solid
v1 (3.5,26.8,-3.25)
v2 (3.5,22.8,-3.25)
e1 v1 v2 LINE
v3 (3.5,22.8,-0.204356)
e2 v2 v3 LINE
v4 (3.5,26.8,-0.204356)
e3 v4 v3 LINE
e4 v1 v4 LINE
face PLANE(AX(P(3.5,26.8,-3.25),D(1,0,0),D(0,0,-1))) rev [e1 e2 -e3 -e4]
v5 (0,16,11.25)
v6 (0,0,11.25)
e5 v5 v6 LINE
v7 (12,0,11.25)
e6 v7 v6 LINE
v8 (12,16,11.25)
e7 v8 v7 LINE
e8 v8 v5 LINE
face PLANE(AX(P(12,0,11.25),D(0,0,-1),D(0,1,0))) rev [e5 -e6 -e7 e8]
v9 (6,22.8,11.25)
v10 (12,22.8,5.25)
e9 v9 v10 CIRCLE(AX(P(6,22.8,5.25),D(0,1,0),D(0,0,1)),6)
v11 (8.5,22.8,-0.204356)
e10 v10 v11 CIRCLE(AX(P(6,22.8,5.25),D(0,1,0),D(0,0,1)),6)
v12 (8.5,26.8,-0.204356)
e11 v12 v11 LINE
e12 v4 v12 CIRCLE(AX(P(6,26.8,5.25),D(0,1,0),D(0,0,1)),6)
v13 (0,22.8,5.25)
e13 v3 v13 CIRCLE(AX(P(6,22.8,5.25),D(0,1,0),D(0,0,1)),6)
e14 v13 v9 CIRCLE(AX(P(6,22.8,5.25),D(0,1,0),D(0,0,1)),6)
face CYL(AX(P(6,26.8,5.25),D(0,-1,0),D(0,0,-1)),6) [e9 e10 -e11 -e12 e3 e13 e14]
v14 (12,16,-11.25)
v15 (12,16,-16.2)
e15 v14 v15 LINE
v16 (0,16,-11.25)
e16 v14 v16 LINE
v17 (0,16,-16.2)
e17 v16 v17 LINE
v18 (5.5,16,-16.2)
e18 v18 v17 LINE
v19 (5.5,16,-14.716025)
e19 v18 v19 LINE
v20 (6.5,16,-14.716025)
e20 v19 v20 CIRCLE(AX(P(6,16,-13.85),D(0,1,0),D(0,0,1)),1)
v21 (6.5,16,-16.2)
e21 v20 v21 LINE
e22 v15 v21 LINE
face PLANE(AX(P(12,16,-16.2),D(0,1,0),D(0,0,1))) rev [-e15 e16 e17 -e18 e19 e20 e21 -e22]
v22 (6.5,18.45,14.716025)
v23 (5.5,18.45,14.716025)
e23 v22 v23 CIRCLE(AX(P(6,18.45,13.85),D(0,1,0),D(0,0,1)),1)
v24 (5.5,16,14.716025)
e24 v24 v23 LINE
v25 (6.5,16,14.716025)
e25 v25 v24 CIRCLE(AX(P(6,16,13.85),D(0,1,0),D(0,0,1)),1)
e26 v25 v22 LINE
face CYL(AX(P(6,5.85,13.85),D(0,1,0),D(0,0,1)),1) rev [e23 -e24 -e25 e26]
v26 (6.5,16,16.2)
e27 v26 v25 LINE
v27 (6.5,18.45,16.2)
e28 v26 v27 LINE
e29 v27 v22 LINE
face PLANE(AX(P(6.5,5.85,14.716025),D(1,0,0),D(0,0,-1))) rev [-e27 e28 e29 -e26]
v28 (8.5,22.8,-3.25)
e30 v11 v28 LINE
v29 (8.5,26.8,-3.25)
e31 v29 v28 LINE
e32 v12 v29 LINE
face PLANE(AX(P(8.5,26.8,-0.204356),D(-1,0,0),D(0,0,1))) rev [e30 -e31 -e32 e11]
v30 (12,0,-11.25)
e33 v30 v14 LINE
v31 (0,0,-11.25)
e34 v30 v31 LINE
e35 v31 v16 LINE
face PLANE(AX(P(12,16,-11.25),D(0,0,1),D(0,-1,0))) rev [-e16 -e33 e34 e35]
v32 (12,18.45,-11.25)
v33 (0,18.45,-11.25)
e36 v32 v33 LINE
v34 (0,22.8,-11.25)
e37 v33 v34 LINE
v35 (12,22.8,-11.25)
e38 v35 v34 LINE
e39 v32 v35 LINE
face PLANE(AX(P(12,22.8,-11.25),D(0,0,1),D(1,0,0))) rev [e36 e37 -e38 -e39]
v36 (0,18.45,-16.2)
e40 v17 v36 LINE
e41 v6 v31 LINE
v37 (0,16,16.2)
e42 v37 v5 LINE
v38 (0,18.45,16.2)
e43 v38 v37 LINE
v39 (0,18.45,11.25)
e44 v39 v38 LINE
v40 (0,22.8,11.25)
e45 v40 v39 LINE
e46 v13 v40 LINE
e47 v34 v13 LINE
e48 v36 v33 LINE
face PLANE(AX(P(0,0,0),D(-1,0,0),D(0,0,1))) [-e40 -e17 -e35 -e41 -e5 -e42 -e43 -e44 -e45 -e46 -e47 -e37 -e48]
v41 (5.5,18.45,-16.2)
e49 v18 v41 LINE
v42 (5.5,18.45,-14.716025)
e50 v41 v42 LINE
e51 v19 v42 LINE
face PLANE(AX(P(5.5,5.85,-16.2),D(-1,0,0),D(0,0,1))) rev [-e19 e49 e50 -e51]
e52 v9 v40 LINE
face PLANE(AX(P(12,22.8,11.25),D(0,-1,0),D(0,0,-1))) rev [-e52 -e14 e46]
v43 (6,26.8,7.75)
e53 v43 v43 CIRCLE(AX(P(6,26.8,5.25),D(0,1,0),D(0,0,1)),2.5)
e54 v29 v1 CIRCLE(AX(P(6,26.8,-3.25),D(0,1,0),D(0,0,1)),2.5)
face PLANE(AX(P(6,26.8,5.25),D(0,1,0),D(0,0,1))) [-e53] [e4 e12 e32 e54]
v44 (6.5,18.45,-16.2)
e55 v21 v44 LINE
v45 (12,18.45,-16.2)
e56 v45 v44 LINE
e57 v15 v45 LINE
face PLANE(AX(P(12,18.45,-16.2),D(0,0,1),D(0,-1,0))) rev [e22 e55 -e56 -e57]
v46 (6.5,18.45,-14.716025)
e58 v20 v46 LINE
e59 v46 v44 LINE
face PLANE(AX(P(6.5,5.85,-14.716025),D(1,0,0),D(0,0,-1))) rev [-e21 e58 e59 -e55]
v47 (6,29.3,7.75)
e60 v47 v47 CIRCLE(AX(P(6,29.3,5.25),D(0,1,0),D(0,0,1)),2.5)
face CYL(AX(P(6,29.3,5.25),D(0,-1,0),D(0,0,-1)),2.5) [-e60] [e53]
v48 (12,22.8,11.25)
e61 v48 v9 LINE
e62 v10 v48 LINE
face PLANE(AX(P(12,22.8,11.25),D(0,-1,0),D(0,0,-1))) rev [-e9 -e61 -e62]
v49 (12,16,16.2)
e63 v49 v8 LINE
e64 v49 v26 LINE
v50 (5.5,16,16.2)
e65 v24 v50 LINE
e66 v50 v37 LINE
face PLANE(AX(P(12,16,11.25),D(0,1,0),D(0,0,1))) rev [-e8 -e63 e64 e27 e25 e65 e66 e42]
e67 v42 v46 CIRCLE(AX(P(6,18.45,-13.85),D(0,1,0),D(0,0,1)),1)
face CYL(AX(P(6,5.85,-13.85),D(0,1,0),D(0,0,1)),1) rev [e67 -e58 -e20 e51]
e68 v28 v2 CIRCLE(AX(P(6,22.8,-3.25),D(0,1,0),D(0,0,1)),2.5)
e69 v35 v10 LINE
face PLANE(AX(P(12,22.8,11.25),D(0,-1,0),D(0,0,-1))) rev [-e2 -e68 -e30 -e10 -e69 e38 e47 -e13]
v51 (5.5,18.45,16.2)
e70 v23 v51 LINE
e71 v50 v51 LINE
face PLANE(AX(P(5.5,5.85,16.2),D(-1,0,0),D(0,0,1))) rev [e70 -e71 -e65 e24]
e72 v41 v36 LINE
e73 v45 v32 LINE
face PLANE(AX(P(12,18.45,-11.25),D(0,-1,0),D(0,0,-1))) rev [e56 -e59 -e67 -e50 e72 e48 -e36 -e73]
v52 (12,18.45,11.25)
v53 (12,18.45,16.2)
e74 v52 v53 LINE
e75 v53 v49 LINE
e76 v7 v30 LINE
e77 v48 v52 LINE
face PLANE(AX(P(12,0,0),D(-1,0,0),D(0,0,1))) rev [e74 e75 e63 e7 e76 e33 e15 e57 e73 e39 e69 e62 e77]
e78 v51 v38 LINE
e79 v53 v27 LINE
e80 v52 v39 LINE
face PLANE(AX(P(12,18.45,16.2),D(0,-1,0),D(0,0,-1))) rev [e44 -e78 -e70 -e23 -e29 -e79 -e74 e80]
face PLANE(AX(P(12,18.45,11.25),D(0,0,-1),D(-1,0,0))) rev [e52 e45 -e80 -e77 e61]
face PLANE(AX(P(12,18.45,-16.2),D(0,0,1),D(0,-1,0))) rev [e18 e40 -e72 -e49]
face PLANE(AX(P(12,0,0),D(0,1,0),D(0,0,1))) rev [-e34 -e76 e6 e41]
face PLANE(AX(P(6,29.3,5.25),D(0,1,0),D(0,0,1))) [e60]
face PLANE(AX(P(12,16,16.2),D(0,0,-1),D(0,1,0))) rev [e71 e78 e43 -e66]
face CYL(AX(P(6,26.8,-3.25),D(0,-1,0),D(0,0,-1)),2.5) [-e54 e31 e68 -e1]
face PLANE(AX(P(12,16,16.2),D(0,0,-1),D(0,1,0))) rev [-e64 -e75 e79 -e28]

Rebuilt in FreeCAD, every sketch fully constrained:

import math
import FreeCAD as App
import Part
import Sketcher
from FreeCAD import Vector


def add_polygon(sketch, points):
    """Adds a closed chain of lines whose ends are joined by coincident constraints."""
    first, n = sketch.GeometryCount, len(points)
    for a, b in zip(points, points[1:] + points[:1]):
        sketch.addGeometry(Part.LineSegment(App.Vector(*a, 0), App.Vector(*b, 0)), False)
    for i in range(n):
        sketch.addConstraint(Sketcher.Constraint("Coincident", first + i, 2, first + (i + 1) % n, 1))

doc = App.newDocument("Part")
body = doc.addObject("PartDesign::Body", "Body")

# Sketch on YZ plane
sketch1 = body.newObject("Sketcher::SketchObject", "Sketch")
sketch1.AttachmentSupport = (doc.getObject("YZ_Plane"), [""])
sketch1.MapMode = "FlatFace"
add_polygon(sketch1, [(0, 11.2), (0, -11.2), (16, -11.2), (16, -16.2), (18.4, -16.2), (18.4, -11.2), (22.8, -11.2), (22.8, 11.2), (18.4, 11.2), (18.4, 16.2), (16, 16.2), (16, 11.2)])  # lines 0-11
sketch1.addConstraint([
    Sketcher.Constraint("Vertical", 0),
    Sketcher.Constraint("Horizontal", 1),
    Sketcher.Constraint("Vertical", 2),
    Sketcher.Constraint("Horizontal", 3),
    Sketcher.Constraint("Vertical", 4),
    Sketcher.Constraint("Horizontal", 5),
    Sketcher.Constraint("Vertical", 6),
    Sketcher.Constraint("Horizontal", 7),
    Sketcher.Constraint("Vertical", 8),
    Sketcher.Constraint("Horizontal", 9),
    Sketcher.Constraint("Vertical", 10),
    Sketcher.Constraint("Horizontal", 11),
    Sketcher.Constraint("Symmetric", 0, 2, 11, 2, -1, 1),
    Sketcher.Constraint("Symmetric", 4, 2, 7, 2, -1),
    Sketcher.Constraint("Symmetric", 2, 2, 9, 2, -1),
    Sketcher.Constraint("Horizontal", 1, 2, 4, 2),
    Sketcher.Constraint("DistanceX", 1, 1, 1, 2, 16.0),
    Sketcher.Constraint("DistanceY", 0, 2, 0, 1, 22.5),
    Sketcher.Constraint("DistanceX", 3, 1, 3, 2, 2.45),
    Sketcher.Constraint("DistanceX", 5, 1, 5, 2, 4.35),
    Sketcher.Constraint("DistanceY", 2, 2, 2, 1, 4.95),
])
pad1 = body.newObject("PartDesign::Pad", "Pad")
pad1.Profile = sketch1
pad1.Length = 12

# Sketch on XZ plane
sketch2 = body.newObject("Sketcher::SketchObject", "Sketch001")
sketch2.AttachmentSupport = (doc.getObject("XZ_Plane"), [""])
sketch2.MapMode = "FlatFace"
sketch2.AttachmentOffset = App.Placement(Vector(0, 0, -18.45), App.Rotation())
sketch2.addGeometry([
    Part.LineSegment(Vector(6.5, -14.7, 0), Vector(6.5, -16.2, 0)),  # 0
    Part.LineSegment(Vector(6.5, -16.2, 0), Vector(5.5, -16.2, 0)),  # 1
    Part.LineSegment(Vector(5.5, -16.2, 0), Vector(5.5, -14.7, 0)),  # 2
    Part.ArcOfCircle(Part.Circle(Vector(6, -13.8, 0), Vector(0, 0, 1), 1), math.radians(-60), math.radians(240)),  # 3
    Part.LineSegment(Vector(6.5, 16.2, 0), Vector(6.5, 14.7, 0)),  # 4
    Part.ArcOfCircle(Part.Circle(Vector(6, 13.8, 0), Vector(0, 0, 1), 1), math.radians(120), math.radians(420)),  # 5
    Part.LineSegment(Vector(5.5, 14.7, 0), Vector(5.5, 16.2, 0)),  # 6
    Part.LineSegment(Vector(5.5, 16.2, 0), Vector(6.5, 16.2, 0)),  # 7
], False)
sketch2.addConstraint([
    Sketcher.Constraint("Coincident", 0, 2, 1, 1),
    Sketcher.Constraint("Coincident", 1, 2, 2, 1),
    Sketcher.Constraint("Coincident", 2, 2, 3, 2),
    Sketcher.Constraint("Coincident", 3, 1, 0, 1),
    Sketcher.Constraint("Coincident", 4, 2, 5, 2),
    Sketcher.Constraint("Coincident", 5, 1, 6, 1),
    Sketcher.Constraint("Coincident", 6, 2, 7, 1),
    Sketcher.Constraint("Coincident", 7, 2, 4, 1),
    Sketcher.Constraint("Vertical", 0),
    Sketcher.Constraint("Horizontal", 1),
    Sketcher.Constraint("Vertical", 2),
    Sketcher.Constraint("Vertical", 4),
    Sketcher.Constraint("Vertical", 6),
    Sketcher.Constraint("Horizontal", 7),
    Sketcher.Constraint("Equal", 3, 5),
    Sketcher.Constraint("Symmetric", 3, 3, 5, 3, -1),
    Sketcher.Constraint("Symmetric", 1, 2, 6, 2, -1),
    Sketcher.Constraint("Horizontal", 2, 2, 3, 1),
    Sketcher.Constraint("Horizontal", 4, 2, 5, 1),
    Sketcher.Constraint("Radius", 3, 1.0),
    Sketcher.Constraint("DistanceX", 1, 2, 1, 1, 1.0),
    Sketcher.Constraint("DistanceX", -1, 1, 3, 3, 6.0),
    Sketcher.Constraint("DistanceY", 0, 2, -1, 1, 16.2),
    Sketcher.Constraint("DistanceY", 3, 3, 5, 3, 27.7),
])
pocket1 = body.newObject("PartDesign::Pocket", "Pocket")
pocket1.Profile = sketch2
pocket1.Length = 12.6
pocket1.Reversed = True

# Sketch on XZ plane
sketch3 = body.newObject("Sketcher::SketchObject", "Sketch002")
sketch3.AttachmentSupport = (doc.getObject("XZ_Plane"), [""])
sketch3.MapMode = "FlatFace"
sketch3.AttachmentOffset = App.Placement(Vector(0, 0, -22.8), App.Rotation())
sketch3.addGeometry([
    Part.LineSegment(Vector(8.5, -0.2, 0), Vector(8.5, -3.2, 0)),
    Part.ArcOfCircle(Part.Circle(Vector(6, -3.2, 0), Vector(0, 0, 1), 2.5), math.radians(180), math.radians(360)),
    Part.LineSegment(Vector(3.5, -3.2, 0), Vector(3.5, -0.2, 0)),
    Part.ArcOfCircle(Part.Circle(Vector(6, 5.2, 0), Vector(0, 0, 1), 6), math.radians(-65), math.radians(245)),
], False)
sketch3.addConstraint([
    Sketcher.Constraint("Tangent", 0, 2, 1, 2),
    Sketcher.Constraint("Tangent", 1, 1, 2, 1),
    Sketcher.Constraint("Coincident", 2, 2, 3, 2),
    Sketcher.Constraint("Coincident", 3, 1, 0, 1),
    Sketcher.Constraint("Vertical", 0),
    Sketcher.Constraint("Vertical", 2),
    Sketcher.Constraint("Horizontal", 2, 2, 3, 1),
    Sketcher.Constraint("Radius", 3, 6.0),
    Sketcher.Constraint("Radius", 1, 2.5),
    Sketcher.Constraint("DistanceX", -1, 1, 1, 3, 6.0),
    Sketcher.Constraint("DistanceY", 1, 3, 3, 3, 8.5),
    Sketcher.Constraint("DistanceY", 1, 3, -1, 1, 3.25),
])
pad2 = body.newObject("PartDesign::Pad", "Pad001")
pad2.Profile = sketch3
pad2.Length = 4
pad2.Reversed = True

# Sketch on XZ plane
sketch4 = body.newObject("Sketcher::SketchObject", "Sketch003")
sketch4.AttachmentSupport = (doc.getObject("XZ_Plane"), [""])
sketch4.MapMode = "FlatFace"
sketch4.AttachmentOffset = App.Placement(Vector(0, 0, -26.8), App.Rotation())
sketch4.addGeometry(Part.Circle(Vector(6, 5.2, 0), Vector(0, 0, 1), 2.5), False)
sketch4.addConstraint([
    Sketcher.Constraint("Diameter", 0, 5.0),
    Sketcher.Constraint("DistanceX", -1, 1, 0, 3, 6.0),
    Sketcher.Constraint("DistanceY", -1, 1, 0, 3, 5.25),
])
pad3 = body.newObject("PartDesign::Pad", "Pad002")
pad3.Profile = sketch4
pad3.Length = 2.5
pad3.Reversed = True

doc.recompute()
